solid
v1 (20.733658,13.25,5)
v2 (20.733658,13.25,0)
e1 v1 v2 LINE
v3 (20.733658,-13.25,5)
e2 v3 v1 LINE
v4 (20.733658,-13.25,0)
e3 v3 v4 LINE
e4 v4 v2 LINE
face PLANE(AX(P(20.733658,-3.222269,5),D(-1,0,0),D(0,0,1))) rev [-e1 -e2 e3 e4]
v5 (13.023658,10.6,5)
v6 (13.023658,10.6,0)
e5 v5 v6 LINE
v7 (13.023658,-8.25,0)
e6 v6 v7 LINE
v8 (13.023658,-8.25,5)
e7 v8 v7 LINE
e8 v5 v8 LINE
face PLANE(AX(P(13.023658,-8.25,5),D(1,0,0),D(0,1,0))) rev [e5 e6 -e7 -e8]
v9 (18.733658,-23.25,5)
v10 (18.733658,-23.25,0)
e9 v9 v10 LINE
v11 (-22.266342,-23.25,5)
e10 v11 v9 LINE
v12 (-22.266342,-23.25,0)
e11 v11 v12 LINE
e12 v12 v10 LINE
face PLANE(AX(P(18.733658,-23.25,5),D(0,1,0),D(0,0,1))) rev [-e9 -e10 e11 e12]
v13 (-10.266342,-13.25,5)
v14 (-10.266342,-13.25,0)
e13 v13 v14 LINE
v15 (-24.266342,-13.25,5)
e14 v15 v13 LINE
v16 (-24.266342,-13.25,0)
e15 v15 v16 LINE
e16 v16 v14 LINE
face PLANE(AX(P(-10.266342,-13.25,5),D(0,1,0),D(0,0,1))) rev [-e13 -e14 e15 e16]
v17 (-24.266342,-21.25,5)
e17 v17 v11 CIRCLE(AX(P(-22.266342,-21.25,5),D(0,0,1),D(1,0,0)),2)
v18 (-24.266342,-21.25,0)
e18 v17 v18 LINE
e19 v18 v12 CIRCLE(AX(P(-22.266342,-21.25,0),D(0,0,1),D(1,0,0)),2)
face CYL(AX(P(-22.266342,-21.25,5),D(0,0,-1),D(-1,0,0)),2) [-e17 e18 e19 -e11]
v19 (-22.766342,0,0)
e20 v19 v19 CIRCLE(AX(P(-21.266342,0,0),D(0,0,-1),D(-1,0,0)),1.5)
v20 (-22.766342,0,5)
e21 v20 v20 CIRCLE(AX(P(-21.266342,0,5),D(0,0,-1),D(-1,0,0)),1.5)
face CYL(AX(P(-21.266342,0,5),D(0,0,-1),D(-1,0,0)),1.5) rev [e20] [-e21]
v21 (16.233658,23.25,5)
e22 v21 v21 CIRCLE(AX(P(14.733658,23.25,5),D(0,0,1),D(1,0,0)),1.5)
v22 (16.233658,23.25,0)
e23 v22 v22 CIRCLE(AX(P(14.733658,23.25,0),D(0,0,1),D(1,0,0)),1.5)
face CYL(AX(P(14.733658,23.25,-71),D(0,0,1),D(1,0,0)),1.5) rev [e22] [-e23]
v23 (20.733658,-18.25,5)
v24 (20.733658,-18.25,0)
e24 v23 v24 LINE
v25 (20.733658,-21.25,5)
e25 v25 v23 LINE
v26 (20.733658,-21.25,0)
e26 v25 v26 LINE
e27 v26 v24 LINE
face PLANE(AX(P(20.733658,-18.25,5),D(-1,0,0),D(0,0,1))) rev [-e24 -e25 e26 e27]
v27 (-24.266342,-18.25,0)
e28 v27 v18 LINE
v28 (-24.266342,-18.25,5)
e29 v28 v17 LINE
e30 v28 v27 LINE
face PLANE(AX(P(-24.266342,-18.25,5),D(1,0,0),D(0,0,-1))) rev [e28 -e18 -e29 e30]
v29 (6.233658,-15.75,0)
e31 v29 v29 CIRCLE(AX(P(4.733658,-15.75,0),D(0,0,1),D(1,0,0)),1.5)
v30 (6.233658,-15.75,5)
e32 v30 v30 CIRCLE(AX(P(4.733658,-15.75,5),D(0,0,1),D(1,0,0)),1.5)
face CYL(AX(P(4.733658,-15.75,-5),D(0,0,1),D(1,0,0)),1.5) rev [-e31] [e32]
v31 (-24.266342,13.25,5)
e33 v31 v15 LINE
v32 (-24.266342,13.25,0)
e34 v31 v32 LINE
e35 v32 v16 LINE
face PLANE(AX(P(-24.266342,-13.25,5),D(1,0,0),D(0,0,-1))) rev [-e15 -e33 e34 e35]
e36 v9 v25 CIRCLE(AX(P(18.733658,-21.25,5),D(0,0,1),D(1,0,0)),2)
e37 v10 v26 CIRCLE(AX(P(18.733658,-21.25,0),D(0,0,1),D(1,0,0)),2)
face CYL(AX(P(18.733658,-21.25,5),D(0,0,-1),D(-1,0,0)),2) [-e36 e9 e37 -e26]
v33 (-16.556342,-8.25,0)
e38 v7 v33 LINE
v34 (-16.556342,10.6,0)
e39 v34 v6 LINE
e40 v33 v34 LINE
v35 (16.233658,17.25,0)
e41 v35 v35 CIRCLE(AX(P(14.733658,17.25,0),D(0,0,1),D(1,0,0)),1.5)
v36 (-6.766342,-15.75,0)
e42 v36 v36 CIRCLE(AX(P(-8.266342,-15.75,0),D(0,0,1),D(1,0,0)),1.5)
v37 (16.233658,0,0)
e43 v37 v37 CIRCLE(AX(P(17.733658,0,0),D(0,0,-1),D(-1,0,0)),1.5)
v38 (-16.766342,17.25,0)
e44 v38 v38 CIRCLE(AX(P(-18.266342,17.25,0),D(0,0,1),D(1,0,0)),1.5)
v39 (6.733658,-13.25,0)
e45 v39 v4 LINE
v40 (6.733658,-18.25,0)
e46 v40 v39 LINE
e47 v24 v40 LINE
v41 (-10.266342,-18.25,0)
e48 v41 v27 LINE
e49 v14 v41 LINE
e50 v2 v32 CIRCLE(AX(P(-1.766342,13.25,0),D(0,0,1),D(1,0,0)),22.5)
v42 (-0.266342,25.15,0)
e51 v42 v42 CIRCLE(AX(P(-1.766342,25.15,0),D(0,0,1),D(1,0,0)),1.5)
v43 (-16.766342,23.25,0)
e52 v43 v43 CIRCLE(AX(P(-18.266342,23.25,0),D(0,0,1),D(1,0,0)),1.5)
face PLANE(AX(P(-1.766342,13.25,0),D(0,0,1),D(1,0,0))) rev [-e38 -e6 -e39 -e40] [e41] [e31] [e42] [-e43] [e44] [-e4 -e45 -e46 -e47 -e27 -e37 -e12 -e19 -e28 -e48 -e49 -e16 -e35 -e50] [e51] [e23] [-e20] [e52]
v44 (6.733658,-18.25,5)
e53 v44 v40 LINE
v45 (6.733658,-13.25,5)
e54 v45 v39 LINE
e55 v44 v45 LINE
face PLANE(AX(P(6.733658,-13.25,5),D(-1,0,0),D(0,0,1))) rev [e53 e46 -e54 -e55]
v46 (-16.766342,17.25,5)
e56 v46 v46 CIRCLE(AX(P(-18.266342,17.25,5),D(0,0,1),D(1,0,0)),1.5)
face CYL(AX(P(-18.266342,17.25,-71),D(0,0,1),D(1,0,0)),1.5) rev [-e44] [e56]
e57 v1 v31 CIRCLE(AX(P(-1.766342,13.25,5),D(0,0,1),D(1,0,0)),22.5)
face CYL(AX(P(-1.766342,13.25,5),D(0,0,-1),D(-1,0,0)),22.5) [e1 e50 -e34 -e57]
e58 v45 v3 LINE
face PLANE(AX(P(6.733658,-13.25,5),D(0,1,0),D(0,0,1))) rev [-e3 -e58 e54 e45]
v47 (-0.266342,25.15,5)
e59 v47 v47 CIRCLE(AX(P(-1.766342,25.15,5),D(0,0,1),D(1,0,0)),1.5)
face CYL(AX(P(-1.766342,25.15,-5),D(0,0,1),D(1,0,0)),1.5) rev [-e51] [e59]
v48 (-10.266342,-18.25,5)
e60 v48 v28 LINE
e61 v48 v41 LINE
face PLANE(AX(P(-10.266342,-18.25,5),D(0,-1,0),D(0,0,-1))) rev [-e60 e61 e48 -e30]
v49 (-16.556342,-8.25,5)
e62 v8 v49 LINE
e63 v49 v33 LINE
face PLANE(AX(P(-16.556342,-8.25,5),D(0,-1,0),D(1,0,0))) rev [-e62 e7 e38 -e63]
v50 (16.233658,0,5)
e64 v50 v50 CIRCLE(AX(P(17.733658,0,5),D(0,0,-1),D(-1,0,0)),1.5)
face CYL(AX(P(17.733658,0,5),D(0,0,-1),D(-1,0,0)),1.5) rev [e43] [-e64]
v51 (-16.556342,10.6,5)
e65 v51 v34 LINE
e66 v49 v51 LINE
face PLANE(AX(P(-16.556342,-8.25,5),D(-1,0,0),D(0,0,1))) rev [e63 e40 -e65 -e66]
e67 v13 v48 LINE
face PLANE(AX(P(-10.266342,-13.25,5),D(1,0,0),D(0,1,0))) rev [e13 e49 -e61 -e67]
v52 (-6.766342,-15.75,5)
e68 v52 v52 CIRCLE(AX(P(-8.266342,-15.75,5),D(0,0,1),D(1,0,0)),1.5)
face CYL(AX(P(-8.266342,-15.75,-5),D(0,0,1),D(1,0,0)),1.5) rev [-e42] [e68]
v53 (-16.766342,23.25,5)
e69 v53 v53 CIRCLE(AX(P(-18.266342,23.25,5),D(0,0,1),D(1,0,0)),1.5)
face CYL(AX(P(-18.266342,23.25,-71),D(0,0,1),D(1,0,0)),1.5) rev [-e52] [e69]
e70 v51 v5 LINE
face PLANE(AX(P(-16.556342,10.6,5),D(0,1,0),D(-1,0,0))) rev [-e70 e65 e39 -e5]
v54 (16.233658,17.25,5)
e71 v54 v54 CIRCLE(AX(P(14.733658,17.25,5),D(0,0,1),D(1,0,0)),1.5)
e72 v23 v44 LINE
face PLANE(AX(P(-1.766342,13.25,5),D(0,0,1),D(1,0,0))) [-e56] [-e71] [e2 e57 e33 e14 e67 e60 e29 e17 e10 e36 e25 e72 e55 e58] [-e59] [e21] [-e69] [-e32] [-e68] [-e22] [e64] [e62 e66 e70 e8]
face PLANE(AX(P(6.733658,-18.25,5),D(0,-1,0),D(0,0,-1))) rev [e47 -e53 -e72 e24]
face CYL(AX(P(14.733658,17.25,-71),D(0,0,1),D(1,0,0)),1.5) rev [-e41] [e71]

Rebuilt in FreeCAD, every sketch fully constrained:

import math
import FreeCAD as App
import Part
import Sketcher
from FreeCAD import Vector
Q = App.Units.Quantity


def add_polygon(sketch, points):
    """Adds a closed chain of lines whose ends are joined by coincident constraints."""
    first, n = sketch.GeometryCount, len(points)
    for a, b in zip(points, points[1:] + points[:1]):
        sketch.addGeometry(Part.LineSegment(App.Vector(*a, 0), App.Vector(*b, 0)), False)
    for i in range(n):
        sketch.addConstraint(Sketcher.Constraint("Coincident", first + i, 2, first + (i + 1) % n, 1))

doc = App.newDocument("Part")
body = doc.addObject("PartDesign::Body", "Body")

# Sketch on XY plane
sketch1 = body.newObject("Sketcher::SketchObject", "Sketch")
sketch1.AttachmentSupport = (doc.getObject("XY_Plane"), [""])
sketch1.MapMode = "FlatFace"
sketch1.addGeometry(Part.ArcOfCircle(Part.Circle(Vector(-1.766342, 13.25, 0), Vector(0, 0, 1), 22.5), math.radians(0), math.radians(180)), False)
sketch1.addGeometry(Part.LineSegment(Vector(-24.266342, 13.25, 0), Vector(-24.266342, -13.25, 0)), False)
sketch1.addGeometry(Part.LineSegment(Vector(-24.266342, -13.25, 0), Vector(-10.266342, -13.25, 0)), False)
sketch1.addGeometry(Part.LineSegment(Vector(-10.266342, -13.25, 0), Vector(-10.266342, -18.25, 0)), False)
sketch1.addGeometry(Part.LineSegment(Vector(-10.266342, -18.25, 0), Vector(-24.266342, -18.25, 0)), False)
sketch1.addGeometry(Part.LineSegment(Vector(-24.266342, -18.25, 0), Vector(-24.266342, -21.25, 0)), False)
sketch1.addGeometry(Part.ArcOfCircle(Part.Circle(Vector(-22.266342, -21.25, 0), Vector(0, 0, 1), 2), math.radians(-180), math.radians(-90)), False)
sketch1.addGeometry(Part.LineSegment(Vector(-22.266342, -23.25, 0), Vector(18.733658, -23.25, 0)), False)
sketch1.addGeometry(Part.ArcOfCircle(Part.Circle(Vector(18.733658, -21.25, 0), Vector(0, 0, 1), 2), math.radians(-90), math.radians(0)), False)
sketch1.addGeometry(Part.LineSegment(Vector(20.733658, -21.25, 0), Vector(20.733658, -18.25, 0)), False)
sketch1.addGeometry(Part.LineSegment(Vector(20.733658, -18.25, 0), Vector(6.733658, -18.25, 0)), False)
sketch1.addGeometry(Part.LineSegment(Vector(6.733658, -18.25, 0), Vector(6.733658, -13.25, 0)), False)
sketch1.addGeometry(Part.LineSegment(Vector(6.733658, -13.25, 0), Vector(20.733658, -13.25, 0)), False)
sketch1.addGeometry(Part.LineSegment(Vector(20.733658, -13.25, 0), Vector(20.733658, 13.25, 0)), False)
sketch1.addConstraint(Sketcher.Constraint("Tangent", 0, 2, 1, 1))
sketch1.addConstraint(Sketcher.Constraint("Coincident", 1, 2, 2, 1))
sketch1.addConstraint(Sketcher.Constraint("Coincident", 2, 2, 3, 1))
sketch1.addConstraint(Sketcher.Constraint("Coincident", 3, 2, 4, 1))
sketch1.addConstraint(Sketcher.Constraint("Coincident", 4, 2, 5, 1))
sketch1.addConstraint(Sketcher.Constraint("Tangent", 5, 2, 6, 1))
sketch1.addConstraint(Sketcher.Constraint("Tangent", 6, 2, 7, 1))
sketch1.addConstraint(Sketcher.Constraint("Tangent", 7, 2, 8, 1))
sketch1.addConstraint(Sketcher.Constraint("Tangent", 8, 2, 9, 1))
sketch1.addConstraint(Sketcher.Constraint("Coincident", 9, 2, 10, 1))
sketch1.addConstraint(Sketcher.Constraint("Coincident", 10, 2, 11, 1))
sketch1.addConstraint(Sketcher.Constraint("Coincident", 11, 2, 12, 1))
sketch1.addConstraint(Sketcher.Constraint("Coincident", 12, 2, 13, 1))
sketch1.addConstraint(Sketcher.Constraint("Tangent", 13, 2, 0, 1))
sketch1.addConstraint(Sketcher.Constraint("Vertical", 1))
sketch1.addConstraint(Sketcher.Constraint("Horizontal", 2))
sketch1.addConstraint(Sketcher.Constraint("Vertical", 3))
sketch1.addConstraint(Sketcher.Constraint("Horizontal", 4))
sketch1.addConstraint(Sketcher.Constraint("Vertical", 5))
sketch1.addConstraint(Sketcher.Constraint("Horizontal", 7))
sketch1.addConstraint(Sketcher.Constraint("Vertical", 9))
sketch1.addConstraint(Sketcher.Constraint("Horizontal", 10))
sketch1.addConstraint(Sketcher.Constraint("Vertical", 11))
sketch1.addConstraint(Sketcher.Constraint("Horizontal", 12))
sketch1.addConstraint(Sketcher.Constraint("Vertical", 13))
sketch1.addConstraint(Sketcher.Constraint("Equal", 6, 8))
sketch1.addConstraint(Sketcher.Constraint("Horizontal", 4, 2, 9, 2))
sketch1.addConstraint(Sketcher.Constraint("Horizontal", 2, 2, 11, 2))
sketch1.addConstraint(Sketcher.Constraint("Vertical", 1, 2, 4, 2))
sketch1.addConstraint(Sketcher.Constraint("Vertical", 9, 2, 12, 2))
sketch1.addConstraint(Sketcher.Constraint("Equal", 4, 10))
sketch1.addConstraint(Sketcher.Constraint("Radius", 6, Q("2 mm")))
sketch1.addConstraint(Sketcher.Constraint("Radius", 0, Q("22.5 mm")))
sketch1.addConstraint(Sketcher.Constraint("DistanceX", 2, 1, 2, 2, Q("14 mm")))
sketch1.addConstraint(Sketcher.Constraint("DistanceY", 3, 2, 3, 1, Q("5 mm")))
sketch1.addConstraint(Sketcher.Constraint("DistanceY", 5, 2, 5, 1, Q("3 mm")))
sketch1.addConstraint(Sketcher.Constraint("DistanceY", 1, 2, 1, 1, Q("26.5 mm")))
sketch1.addConstraint(Sketcher.Constraint("DistanceY", -1, 1, 0, 3, Q("13.25 mm")))
sketch1.addConstraint(Sketcher.Constraint("DistanceX", 0, 3, -1, 1, Q("1.766342 mm")))
pad1 = body.newObject("PartDesign::Pad", "Pad")
pad1.Profile = sketch1
pad1.Length = 5

# Sketch on XY plane
sketch2 = body.newObject("Sketcher::SketchObject", "Sketch001")
sketch2.AttachmentSupport = (doc.getObject("XY_Plane"), [""])
sketch2.MapMode = "FlatFace"
add_polygon(sketch2, [(13.023658, 10.6), (13.023658, -8.25), (-16.556342, -8.25), (-16.556342, 10.6)])  # lines 0-3
sketch2.addConstraint(Sketcher.Constraint("Vertical", 0))
sketch2.addConstraint(Sketcher.Constraint("Horizontal", 1))
sketch2.addConstraint(Sketcher.Constraint("Vertical", 2))
sketch2.addConstraint(Sketcher.Constraint("Horizontal", 3))
sketch2.addConstraint(Sketcher.Constraint("DistanceX", 1, 2, 1, 1, Q("29.58 mm")))
sketch2.addConstraint(Sketcher.Constraint("DistanceY", 0, 2, 0, 1, Q("18.85 mm")))
sketch2.addConstraint(Sketcher.Constraint("DistanceY", -1, 1, 2, 2, Q("10.6 mm")))
sketch2.addConstraint(Sketcher.Constraint("DistanceX", -1, 1, 0, 2, Q("13.023658 mm")))
pocket1 = body.newObject("PartDesign::Pocket", "Pocket")
pocket1.Profile = sketch2
pocket1.Length = 5
pocket1.Reversed = True

# Sketch on XY plane
sketch3 = body.newObject("Sketcher::SketchObject", "Sketch002")
sketch3.AttachmentSupport = (doc.getObject("XY_Plane"), [""])
sketch3.MapMode = "FlatFace"
sketch3.addGeometry(Part.Circle(Vector(17.733658, 0, 0), Vector(0, 0, 1), 1.5), False)
sketch3.addGeometry(Part.Circle(Vector(-21.266342, 0, 0), Vector(0, 0, 1), 1.5), False)
sketch3.addConstraint(Sketcher.Constraint("Equal", 0, 1))
sketch3.addConstraint(Sketcher.Constraint("PointOnObject", 0, 3, -1))
sketch3.addConstraint(Sketcher.Constraint("PointOnObject", 1, 3, -1))
sketch3.addConstraint(Sketcher.Constraint("Diameter", 0, Q("3 mm")))
sketch3.addConstraint(Sketcher.Constraint("DistanceX", 1, 3, 0, 3, Q("39 mm")))
sketch3.addConstraint(Sketcher.Constraint("DistanceX", -1, 1, 0, 3, Q("17.733658 mm")))
pocket2 = body.newObject("PartDesign::Pocket", "Pocket001")
pocket2.Profile = sketch3
pocket2.Length = 5
pocket2.Reversed = True

# Sketch on XY plane
sketch4 = body.newObject("Sketcher::SketchObject", "Sketch003")
sketch4.AttachmentSupport = (doc.getObject("XY_Plane"), [""])
sketch4.MapMode = "FlatFace"
sketch4.AttachmentOffset = App.Placement(Vector(0, 0, 5), App.Rotation())
sketch4.addGeometry(Part.Circle(Vector(4.733658, -15.75, 0), Vector(0, 0, 1), 1.5), False)
sketch4.addGeometry(Part.Circle(Vector(-8.266342, -15.75, 0), Vector(0, 0, 1), 1.5), False)
sketch4.addConstraint(Sketcher.Constraint("Equal", 0, 1))
sketch4.addConstraint(Sketcher.Constraint("Horizontal", 0, 3, 1, 3))
sketch4.addConstraint(Sketcher.Constraint("Diameter", 0, Q("3 mm")))
sketch4.addConstraint(Sketcher.Constraint("DistanceX", 1, 3, 0, 3, Q("13 mm")))
sketch4.addConstraint(Sketcher.Constraint("DistanceY", 0, 3, -1, 1, Q("15.75 mm")))
sketch4.addConstraint(Sketcher.Constraint("DistanceX", -1, 1, 0, 3, Q("4.733658 mm")))
pocket3 = body.newObject("PartDesign::Pocket", "Pocket002")
pocket3.Profile = sketch4
pocket3.Length = 10

# Sketch on XY plane
sketch5 = body.newObject("Sketcher::SketchObject", "Sketch004")
sketch5.AttachmentSupport = (doc.getObject("XY_Plane"), [""])
sketch5.MapMode = "FlatFace"
sketch5.AttachmentOffset = App.Placement(Vector(0, 0, 5), App.Rotation())
sketch5.addGeometry(Part.Circle(Vector(-1.766342, 25.15, 0), Vector(0, 0, 1), 1.5), False)
sketch5.addConstraint(Sketcher.Constraint("Diameter", 0, Q("3 mm")))
sketch5.addConstraint(Sketcher.Constraint("DistanceY", -1, 1, 0, 3, Q("25.15 mm")))
sketch5.addConstraint(Sketcher.Constraint("DistanceX", 0, 3, -1, 1, Q("1.766342 mm")))
pocket4 = body.newObject("PartDesign::Pocket", "Pocket003")
pocket4.Profile = sketch5
pocket4.Length = 10

# Sketch on XY plane
sketch6 = body.newObject("Sketcher::SketchObject", "Sketch005")
sketch6.AttachmentSupport = (doc.getObject("XY_Plane"), [""])
sketch6.MapMode = "FlatFace"
sketch6.AttachmentOffset = App.Placement(Vector(0, 0, 5), App.Rotation())
sketch6.addGeometry(Part.Circle(Vector(14.733658, 17.25, 0), Vector(0, 0, 1), 1.5), False)
sketch6.addGeometry(Part.Circle(Vector(14.733658, 23.25, 0), Vector(0, 0, 1), 1.5), False)
sketch6.addGeometry(Part.Circle(Vector(-18.266342, 23.25, 0), Vector(0, 0, 1), 1.5), False)
sketch6.addGeometry(Part.Circle(Vector(-18.266342, 17.25, 0), Vector(0, 0, 1), 1.5), False)
sketch6.addConstraint(Sketcher.Constraint("Equal", 0, 1))
sketch6.addConstraint(Sketcher.Constraint("Equal", 1, 2))
sketch6.addConstraint(Sketcher.Constraint("Equal", 2, 3))
sketch6.addConstraint(Sketcher.Constraint("Horizontal", 1, 3, 2, 3))
sketch6.addConstraint(Sketcher.Constraint("Horizontal", 0, 3, 3, 3))
sketch6.addConstraint(Sketcher.Constraint("Vertical", 0, 3, 1, 3))
sketch6.addConstraint(Sketcher.Constraint("Vertical", 2, 3, 3, 3))
sketch6.addConstraint(Sketcher.Constraint("Diameter", 0, Q("3 mm")))
sketch6.addConstraint(Sketcher.Constraint("DistanceY", 0, 3, 1, 3, Q("6 mm")))
sketch6.addConstraint(Sketcher.Constraint("DistanceX", 2, 3, 1, 3, Q("33 mm")))
sketch6.addConstraint(Sketcher.Constraint("DistanceY", -1, 1, 0, 3, Q("17.25 mm")))
sketch6.addConstraint(Sketcher.Constraint("DistanceX", -1, 1, 0, 3, Q("14.733658 mm")))
pocket5 = body.newObject("PartDesign::Pocket", "Pocket004")
pocket5.Profile = sketch6
pocket5.Length = 76

doc.recompute()
